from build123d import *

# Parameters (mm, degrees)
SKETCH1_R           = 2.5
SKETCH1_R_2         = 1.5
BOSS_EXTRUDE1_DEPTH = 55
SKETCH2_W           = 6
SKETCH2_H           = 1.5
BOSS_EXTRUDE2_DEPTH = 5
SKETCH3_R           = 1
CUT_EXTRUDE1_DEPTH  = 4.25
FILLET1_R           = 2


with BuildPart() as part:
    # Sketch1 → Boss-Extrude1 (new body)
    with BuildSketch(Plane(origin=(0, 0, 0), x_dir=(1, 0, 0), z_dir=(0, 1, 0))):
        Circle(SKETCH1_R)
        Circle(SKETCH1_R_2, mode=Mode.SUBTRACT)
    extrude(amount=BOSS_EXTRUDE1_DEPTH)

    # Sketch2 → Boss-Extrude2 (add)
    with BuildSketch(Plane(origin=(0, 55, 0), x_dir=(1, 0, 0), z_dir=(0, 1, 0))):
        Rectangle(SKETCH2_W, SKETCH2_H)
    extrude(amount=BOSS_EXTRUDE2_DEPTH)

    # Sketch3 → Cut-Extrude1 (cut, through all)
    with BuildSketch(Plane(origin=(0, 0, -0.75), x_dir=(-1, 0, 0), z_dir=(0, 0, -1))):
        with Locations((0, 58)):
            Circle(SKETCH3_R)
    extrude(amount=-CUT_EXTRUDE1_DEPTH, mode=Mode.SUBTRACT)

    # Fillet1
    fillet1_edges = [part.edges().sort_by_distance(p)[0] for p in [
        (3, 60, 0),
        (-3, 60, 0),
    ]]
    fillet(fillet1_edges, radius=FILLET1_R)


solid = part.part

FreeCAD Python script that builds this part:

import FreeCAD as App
import Part
import Sketcher
from FreeCAD import Vector
Q = App.Units.Quantity


def edges_at(feature, points):
    """Names of the edges that pass closest to the given points."""
    edges = feature.Shape.Edges
    near = lambda p: min(range(len(edges)), key=lambda i: edges[i].distToShape(Part.Vertex(*p))[0])
    return sorted({f"Edge{near(p) + 1}" for p in points})


def add_polygon(sketch, points):
    """Adds a closed chain of lines whose ends are joined by coincident constraints."""
    first, n = sketch.GeometryCount, len(points)
    for a, b in zip(points, points[1:] + points[:1]):
        sketch.addGeometry(Part.LineSegment(App.Vector(*a, 0), App.Vector(*b, 0)), False)
    for i in range(n):
        sketch.addConstraint(Sketcher.Constraint("Coincident", first + i, 2, first + (i + 1) % n, 1))

doc = App.newDocument("Part")
body = doc.addObject("PartDesign::Body", "Body")

# Sketch on XZ plane
sketch1 = doc.addObject("Sketcher::SketchObject", "Sketch")
body.addObject(sketch1)
sketch1.AttachmentSupport = (doc.XZ_Plane, [""])
sketch1.MapMode = "FlatFace"
sketch1.addGeometry(Part.Circle(Vector(0, 0, 0), Vector(0, 0, 1), 2.5), False)
sketch1.addGeometry(Part.Circle(Vector(0, 0, 0), Vector(0, 0, 1), 1.5), False)
sketch1.addConstraint(Sketcher.Constraint("Coincident", 0, 3, -1, 1))
sketch1.addConstraint(Sketcher.Constraint("Coincident", 1, 3, -1, 1))
sketch1.addConstraint(Sketcher.Constraint("Diameter", 0, Q("5 mm")))
sketch1.addConstraint(Sketcher.Constraint("Diameter", 1, Q("3 mm")))
pad1 = doc.addObject("PartDesign::Pad", "Pad")
body.addObject(pad1)
pad1.Profile = sketch1
pad1.Length = 55
pad1.Reversed = True

# Sketch on XZ plane
sketch2 = doc.addObject("Sketcher::SketchObject", "Sketch001")
body.addObject(sketch2)
sketch2.AttachmentSupport = (doc.XZ_Plane, [""])
sketch2.MapMode = "FlatFace"
sketch2.AttachmentOffset = App.Placement(Vector(0, 0, -55), App.Rotation())
add_polygon(sketch2, [(-3, -0.8), (-3, 0.8), (3, 0.8), (3, -0.8)])  # lines 0-3
sketch2.addConstraint(Sketcher.Constraint("Vertical", 0))
sketch2.addConstraint(Sketcher.Constraint("Horizontal", 1))
sketch2.addConstraint(Sketcher.Constraint("Vertical", 2))
sketch2.addConstraint(Sketcher.Constraint("Horizontal", 3))
sketch2.addConstraint(Sketcher.Constraint("Symmetric", 0, 2, 2, 2, -1, 1))
sketch2.addConstraint(Sketcher.Constraint("DistanceX", 1, 1, 1, 2, Q("6 mm")))
sketch2.addConstraint(Sketcher.Constraint("DistanceY", 0, 1, 0, 2, Q("1.5 mm")))
pad2 = doc.addObject("PartDesign::Pad", "Pad001")
body.addObject(pad2)
pad2.Profile = sketch2
pad2.Length = 5
pad2.Reversed = True

# Sketch on XY plane
sketch3 = doc.addObject("Sketcher::SketchObject", "Sketch002")
body.addObject(sketch3)
sketch3.AttachmentSupport = (doc.XY_Plane, [""])
sketch3.MapMode = "FlatFace"
sketch3.AttachmentOffset = App.Placement(Vector(0, 0, -0.75), App.Rotation())
sketch3.addGeometry(Part.Circle(Vector(0, 58, 0), Vector(0, 0, 1), 1), False)
sketch3.addConstraint(Sketcher.Constraint("PointOnObject", 0, 3, -2))
sketch3.addConstraint(Sketcher.Constraint("Diameter", 0, Q("2 mm")))
sketch3.addConstraint(Sketcher.Constraint("DistanceY", -1, 1, 0, 3, Q("58 mm")))
pocket1 = doc.addObject("PartDesign::Pocket", "Pocket")
body.addObject(pocket1)
pocket1.Profile = sketch3
pocket1.Type = "ThroughAll"
pocket1.Reversed = True
doc.recompute()

fillet = doc.addObject("PartDesign::Fillet", "Fillet")
body.addObject(fillet)
fillet.Base = (pocket1, edges_at(pocket1, [(3, 60, 0), (-3, 60, 0)]))
fillet.Radius = 2

doc.recompute()
